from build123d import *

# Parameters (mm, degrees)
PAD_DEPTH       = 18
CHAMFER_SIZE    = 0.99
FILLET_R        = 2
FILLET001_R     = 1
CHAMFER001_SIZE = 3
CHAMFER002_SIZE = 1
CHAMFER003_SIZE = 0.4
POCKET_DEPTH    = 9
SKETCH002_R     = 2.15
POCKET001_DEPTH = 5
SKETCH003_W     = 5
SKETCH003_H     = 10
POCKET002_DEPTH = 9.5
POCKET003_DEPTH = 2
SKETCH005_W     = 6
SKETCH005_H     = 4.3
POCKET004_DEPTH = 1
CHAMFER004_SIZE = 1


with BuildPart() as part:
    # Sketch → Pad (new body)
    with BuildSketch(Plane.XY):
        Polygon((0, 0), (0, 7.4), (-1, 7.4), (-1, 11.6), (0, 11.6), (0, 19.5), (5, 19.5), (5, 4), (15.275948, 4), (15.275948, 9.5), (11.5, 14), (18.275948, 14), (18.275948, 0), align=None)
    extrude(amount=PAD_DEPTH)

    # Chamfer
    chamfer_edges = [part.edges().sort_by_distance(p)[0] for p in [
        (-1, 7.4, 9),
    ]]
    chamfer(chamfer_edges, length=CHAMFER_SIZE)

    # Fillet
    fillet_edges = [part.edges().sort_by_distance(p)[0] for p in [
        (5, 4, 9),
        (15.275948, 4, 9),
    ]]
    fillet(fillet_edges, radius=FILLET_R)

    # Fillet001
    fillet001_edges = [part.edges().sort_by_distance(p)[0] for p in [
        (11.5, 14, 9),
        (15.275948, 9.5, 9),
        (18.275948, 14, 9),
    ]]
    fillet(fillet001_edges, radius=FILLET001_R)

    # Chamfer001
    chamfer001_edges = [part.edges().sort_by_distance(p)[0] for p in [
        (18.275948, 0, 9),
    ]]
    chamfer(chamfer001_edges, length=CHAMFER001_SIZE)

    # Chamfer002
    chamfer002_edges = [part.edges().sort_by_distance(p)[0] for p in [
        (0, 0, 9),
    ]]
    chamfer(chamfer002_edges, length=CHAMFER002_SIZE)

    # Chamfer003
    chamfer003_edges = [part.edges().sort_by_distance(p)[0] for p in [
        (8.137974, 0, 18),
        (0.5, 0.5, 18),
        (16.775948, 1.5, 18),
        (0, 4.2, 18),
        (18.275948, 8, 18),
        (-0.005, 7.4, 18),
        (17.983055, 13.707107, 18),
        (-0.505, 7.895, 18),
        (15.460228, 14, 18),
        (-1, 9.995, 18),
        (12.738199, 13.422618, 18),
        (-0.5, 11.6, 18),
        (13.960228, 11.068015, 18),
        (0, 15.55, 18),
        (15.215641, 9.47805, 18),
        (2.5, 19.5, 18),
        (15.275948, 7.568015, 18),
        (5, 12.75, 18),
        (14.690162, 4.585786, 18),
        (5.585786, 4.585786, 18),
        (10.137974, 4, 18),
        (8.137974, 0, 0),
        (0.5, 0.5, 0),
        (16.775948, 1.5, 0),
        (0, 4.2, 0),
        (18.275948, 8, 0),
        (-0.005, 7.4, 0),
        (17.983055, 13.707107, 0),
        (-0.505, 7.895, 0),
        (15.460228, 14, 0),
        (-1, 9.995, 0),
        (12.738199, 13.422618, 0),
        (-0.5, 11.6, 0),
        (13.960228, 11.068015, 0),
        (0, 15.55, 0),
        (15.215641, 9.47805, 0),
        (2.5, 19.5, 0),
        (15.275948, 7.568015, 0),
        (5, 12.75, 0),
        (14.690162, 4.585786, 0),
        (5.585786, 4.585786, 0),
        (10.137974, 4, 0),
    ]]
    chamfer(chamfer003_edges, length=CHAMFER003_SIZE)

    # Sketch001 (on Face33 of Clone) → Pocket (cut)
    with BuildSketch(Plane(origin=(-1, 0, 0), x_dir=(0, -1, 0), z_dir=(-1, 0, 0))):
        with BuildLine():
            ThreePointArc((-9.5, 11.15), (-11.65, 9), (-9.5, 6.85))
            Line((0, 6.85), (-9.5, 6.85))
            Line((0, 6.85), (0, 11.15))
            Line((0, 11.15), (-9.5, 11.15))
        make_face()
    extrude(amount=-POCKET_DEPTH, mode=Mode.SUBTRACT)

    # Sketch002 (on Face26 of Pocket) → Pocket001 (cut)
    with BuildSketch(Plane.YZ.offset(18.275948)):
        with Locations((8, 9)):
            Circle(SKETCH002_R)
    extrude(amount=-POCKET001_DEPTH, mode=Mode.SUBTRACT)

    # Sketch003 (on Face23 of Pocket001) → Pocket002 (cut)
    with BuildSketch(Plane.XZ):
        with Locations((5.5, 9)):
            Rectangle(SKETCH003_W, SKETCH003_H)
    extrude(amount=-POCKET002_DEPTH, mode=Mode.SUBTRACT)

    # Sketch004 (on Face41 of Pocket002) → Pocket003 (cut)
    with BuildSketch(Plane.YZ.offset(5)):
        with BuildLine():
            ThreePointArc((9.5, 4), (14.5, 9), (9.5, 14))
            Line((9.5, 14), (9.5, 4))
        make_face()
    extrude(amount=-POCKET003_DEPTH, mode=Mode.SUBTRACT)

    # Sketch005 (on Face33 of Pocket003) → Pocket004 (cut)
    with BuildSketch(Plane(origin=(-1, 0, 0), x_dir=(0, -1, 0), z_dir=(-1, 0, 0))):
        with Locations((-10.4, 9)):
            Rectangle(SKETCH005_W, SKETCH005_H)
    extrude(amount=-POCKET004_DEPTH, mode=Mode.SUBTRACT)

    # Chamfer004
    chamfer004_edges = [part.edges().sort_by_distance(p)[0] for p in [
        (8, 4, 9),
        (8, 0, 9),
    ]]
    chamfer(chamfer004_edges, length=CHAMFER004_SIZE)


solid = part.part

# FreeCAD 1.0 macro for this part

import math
import FreeCAD as App
import Part
import Sketcher
from FreeCAD import Vector
Q = App.Units.Quantity


def edges_at(feature, points):
    """Names of the edges that pass closest to the given points."""
    edges = feature.Shape.Edges
    near = lambda p: min(range(len(edges)), key=lambda i: edges[i].distToShape(Part.Vertex(*p))[0])
    return sorted({f"Edge{near(p) + 1}" for p in points})


def add_polygon(sketch, points):
    """Adds a closed chain of lines whose ends are joined by coincident constraints."""
    first, n = sketch.GeometryCount, len(points)
    for a, b in zip(points, points[1:] + points[:1]):
        sketch.addGeometry(Part.LineSegment(App.Vector(*a, 0), App.Vector(*b, 0)), False)
    for i in range(n):
        sketch.addConstraint(Sketcher.Constraint("Coincident", first + i, 2, first + (i + 1) % n, 1))

doc = App.newDocument("Part")
body = doc.addObject("PartDesign::Body", "Body")

# Sketch on XY plane
sketch1 = body.newObject("Sketcher::SketchObject", "Sketch")
sketch1.AttachmentSupport = (doc.getObject("XY_Plane"), [""])
sketch1.MapMode = "FlatFace"
add_polygon(sketch1, [(0, 7.4), (0, 0), (18.3, 0), (18.3, 14), (11.5, 14), (15.3, 9.5), (15.3, 4), (5, 4), (5, 19.5), (0, 19.5), (0, 11.6), (-1, 11.6), (-1, 7.4)])  # lines 0-12
sketch1.addConstraint([
    Sketcher.Constraint("Vertical", 0),
    Sketcher.Constraint("Horizontal", 1),
    Sketcher.Constraint("Vertical", 2),
    Sketcher.Constraint("Horizontal", 3),
    Sketcher.Constraint("Vertical", 5),
    Sketcher.Constraint("Horizontal", 6),
    Sketcher.Constraint("Vertical", 7),
    Sketcher.Constraint("Horizontal", 8),
    Sketcher.Constraint("Vertical", 9),
    Sketcher.Constraint("Horizontal", 10),
    Sketcher.Constraint("Vertical", 11),
    Sketcher.Constraint("Horizontal", 12),
    Sketcher.Constraint("Coincident", 0, 2, -1, 1),
    Sketcher.Constraint("PointOnObject", 8, 2, -2),
    Sketcher.Constraint("DistanceX", 8, 2, 8, 1, 5.0),
    Sketcher.Constraint("DistanceX", 10, 2, 10, 1, 1.0),
    Sketcher.Constraint("DistanceY", 2, 1, 2, 2, 14.0),
    Sketcher.Constraint("Angle", 4, Q("-50.000003 deg")),
    Sketcher.Constraint("DistanceY", 0, 2, 0, 1, 7.4),
    Sketcher.Constraint("DistanceY", 5, 2, 5, 1, 5.5),
    Sketcher.Constraint("DistanceY", 7, 1, 7, 2, 15.5),
    Sketcher.Constraint("DistanceY", 9, 2, 9, 1, 7.9),
    Sketcher.Constraint("DistanceY", 11, 2, 11, 1, 4.2),
    Sketcher.Constraint("DistanceX", 4, 2, 2, 2, 3.0),
    Sketcher.Constraint("DistanceX", -1, 1, 3, 2, 11.5),
])
pad1 = body.newObject("PartDesign::Pad", "Pad")
pad1.Profile = sketch1
pad1.Length = 18
doc.recompute()

chamfer = body.newObject("PartDesign::Chamfer", "Chamfer")
chamfer.Base = (pad1, edges_at(pad1, [(-1, 7.4, 9)]))
chamfer.Size = 0.99
doc.recompute()

fillet = body.newObject("PartDesign::Fillet", "Fillet")
fillet.Base = (chamfer, edges_at(chamfer, [(5, 4, 9), (15.276, 4, 9)]))
fillet.Radius = 2
doc.recompute()

fillet2 = body.newObject("PartDesign::Fillet", "Fillet001")
fillet2.Base = (fillet, edges_at(fillet, [(11.5, 14, 9), (15.276, 9.5, 9), (18.276, 14, 9)]))
fillet2.Radius = 1
doc.recompute()

chamfer2 = body.newObject("PartDesign::Chamfer", "Chamfer001")
chamfer2.Base = (fillet2, edges_at(fillet2, [(18.276, 0, 9)]))
chamfer2.Size = 3
doc.recompute()

chamfer3 = body.newObject("PartDesign::Chamfer", "Chamfer002")
chamfer3.Base = (chamfer2, edges_at(chamfer2, [(0, 0, 9)]))
chamfer3.Size = 1
doc.recompute()

chamfer4 = body.newObject("PartDesign::Chamfer", "Chamfer003")
chamfer4.Base = (chamfer3, edges_at(chamfer3, [
    (8.138, 0, 18),
    (0.5, 0.5, 18),
    (16.776, 1.5, 18),
    (0, 4.2, 18),
    (18.276, 8, 18),
    (-0.005, 7.4, 18),
    (17.983, 13.707, 18),
    (-0.505, 7.895, 18),
    (15.46, 14, 18),
    (-1, 9.995, 18),
    (12.738, 13.423, 18),
    (-0.5, 11.6, 18),
    (13.96, 11.068, 18),
    (0, 15.55, 18),
    (15.216, 9.478, 18),
    (2.5, 19.5, 18),
    (15.276, 7.568, 18),
    (5, 12.75, 18),
    (14.69, 4.586, 18),
    (5.586, 4.586, 18),
    (10.138, 4, 18),
    (8.138, 0, 0),
    (0.5, 0.5, 0),
    (16.776, 1.5, 0),
    (0, 4.2, 0),
    (18.276, 8, 0),
    (-0.005, 7.4, 0),
    (17.983, 13.707, 0),
    (-0.505, 7.895, 0),
    (15.46, 14, 0),
    (-1, 9.995, 0),
    (12.738, 13.423, 0),
    (-0.5, 11.6, 0),
    (13.96, 11.068, 0),
    (0, 15.55, 0),
    (15.216, 9.478, 0),
    (2.5, 19.5, 0),
    (15.276, 7.568, 0),
    (5, 12.75, 0),
    (14.69, 4.586, 0),
    (5.586, 4.586, 0),
    (10.138, 4, 0),
]))
chamfer4.Size = 0.4

# Sketch on YZ plane
sketch2 = body.newObject("Sketcher::SketchObject", "Sketch001")
sketch2.AttachmentSupport = (doc.getObject("YZ_Plane"), [""])
sketch2.MapMode = "FlatFace"
sketch2.AttachmentOffset = App.Placement(Vector(0, 0, -1), App.Rotation())
sketch2.addGeometry([
    Part.ArcOfCircle(Part.Circle(Vector(9.5, 9, 0), Vector(0, 0, 1), 2.1), math.radians(-90), math.radians(90)),
    Part.LineSegment(Vector(9.5, 6.8, 0), Vector(0, 6.8, 0)),
    Part.LineSegment(Vector(0, 6.8, 0), Vector(0, 11.2, 0)),
    Part.LineSegment(Vector(0, 11.2, 0), Vector(9.5, 11.2, 0)),
], False)
sketch2.addConstraint([
    Sketcher.Constraint("Tangent", 0, 1, 1, 1),
    Sketcher.Constraint("Coincident", 1, 2, 2, 1),
    Sketcher.Constraint("Coincident", 2, 2, 3, 1),
    Sketcher.Constraint("Tangent", 3, 2, 0, 2),
    Sketcher.Constraint("Horizontal", 1),
    Sketcher.Constraint("Vertical", 2),
    Sketcher.Constraint("Horizontal", 3),
    Sketcher.Constraint("PointOnObject", 1, 2, -2),
    Sketcher.Constraint("Radius", 0, 2.15),
    Sketcher.Constraint("DistanceX", 1, 2, 1, 1, 9.5),
    Sketcher.Constraint("DistanceY", -1, 1, 0, 3, 9.0),
])
pocket1 = body.newObject("PartDesign::Pocket", "Pocket")
pocket1.Profile = sketch2
pocket1.Length = 9
pocket1.Reversed = True

# Sketch on YZ plane
sketch3 = body.newObject("Sketcher::SketchObject", "Sketch002")
sketch3.AttachmentSupport = (doc.getObject("YZ_Plane"), [""])
sketch3.MapMode = "FlatFace"
sketch3.AttachmentOffset = App.Placement(Vector(0, 0, 18.275948), App.Rotation())
sketch3.addGeometry(Part.Circle(Vector(8, 9, 0), Vector(0, 0, 1), 2.1), False)
sketch3.addConstraint([
    Sketcher.Constraint("Diameter", 0, 4.3),
    Sketcher.Constraint("DistanceX", -1, 1, 0, 3, 8.0),
    Sketcher.Constraint("DistanceY", -1, 1, 0, 3, 9.0),
])
pocket2 = body.newObject("PartDesign::Pocket", "Pocket001")
pocket2.Profile = sketch3
pocket2.Length = 5

# Sketch on XZ plane
sketch4 = body.newObject("Sketcher::SketchObject", "Sketch003")
sketch4.AttachmentSupport = (doc.getObject("XZ_Plane"), [""])
sketch4.MapMode = "FlatFace"
add_polygon(sketch4, [(3, 14), (3, 4), (8, 4), (8, 14)])  # lines 0-3
sketch4.addConstraint([
    Sketcher.Constraint("Vertical", 0),
    Sketcher.Constraint("Horizontal", 1),
    Sketcher.Constraint("Vertical", 2),
    Sketcher.Constraint("Horizontal", 3),
    Sketcher.Constraint("DistanceX", 1, 1, 1, 2, 5.0),
    Sketcher.Constraint("DistanceY", 0, 2, 0, 1, 10.0),
    Sketcher.Constraint("DistanceX", -1, 1, 0, 2, 3.0),
    Sketcher.Constraint("DistanceY", -1, 1, 0, 2, 4.0),
])
pocket3 = body.newObject("PartDesign::Pocket", "Pocket002")
pocket3.Profile = sketch4
pocket3.Length = 9.5

# Sketch on YZ plane
sketch5 = body.newObject("Sketcher::SketchObject", "Sketch004")
sketch5.AttachmentSupport = (doc.getObject("YZ_Plane"), [""])
sketch5.MapMode = "FlatFace"
sketch5.AttachmentOffset = App.Placement(Vector(0, 0, 5), App.Rotation())
sketch5.addGeometry([
    Part.ArcOfCircle(Part.Circle(Vector(10, 9, 0), Vector(0, 0, 1), 5), math.radians(-90), math.radians(90)),
    Part.LineSegment(Vector(10, 14, 0), Vector(10, 4, 0)),
], False)
sketch5.addConstraint([
    Sketcher.Constraint("Coincident", 0, 1, 1, 2),
    Sketcher.Constraint("Coincident", 1, 1, 0, 2),
    Sketcher.Constraint("Vertical", 1),
    Sketcher.Constraint("Radius", 0, 5.0),
    Sketcher.Constraint("DistanceY", -1, 1, 0, 3, 9.0),
    Sketcher.Constraint("DistanceX", -1, 1, 0, 3, 9.5),
    Sketcher.Constraint("DistanceX", -1, 1, 0, 1, 9.5),
])
pocket4 = body.newObject("PartDesign::Pocket", "Pocket003")
pocket4.Profile = sketch5
pocket4.Length = 2

# Sketch on YZ plane
sketch6 = body.newObject("Sketcher::SketchObject", "Sketch005")
sketch6.AttachmentSupport = (doc.getObject("YZ_Plane"), [""])
sketch6.MapMode = "FlatFace"
sketch6.AttachmentOffset = App.Placement(Vector(0, 0, -1), App.Rotation())
add_polygon(sketch6, [(13.4, 11.2), (13.4, 6.8), (7.4, 6.8), (7.4, 11.2)])  # lines 0-3
sketch6.addConstraint([
    Sketcher.Constraint("Vertical", 0),
    Sketcher.Constraint("Horizontal", 1),
    Sketcher.Constraint("Vertical", 2),
    Sketcher.Constraint("Horizontal", 3),
    Sketcher.Constraint("DistanceX", 1, 2, 1, 1, 6.0),
    Sketcher.Constraint("DistanceY", 0, 2, 0, 1, 4.3),
    Sketcher.Constraint("DistanceX", -1, 1, 0, 2, 13.4),
    Sketcher.Constraint("DistanceY", -1, 1, 0, 2, 6.85),
])
pocket5 = body.newObject("PartDesign::Pocket", "Pocket004")
pocket5.Profile = sketch6
pocket5.Length = 1
pocket5.Reversed = True
doc.recompute()

chamfer5 = body.newObject("PartDesign::Chamfer", "Chamfer004")
chamfer5.Base = (pocket5, edges_at(pocket5, [(8, 4, 9), (8, 0, 9)]))
chamfer5.Size = 1

doc.recompute()
